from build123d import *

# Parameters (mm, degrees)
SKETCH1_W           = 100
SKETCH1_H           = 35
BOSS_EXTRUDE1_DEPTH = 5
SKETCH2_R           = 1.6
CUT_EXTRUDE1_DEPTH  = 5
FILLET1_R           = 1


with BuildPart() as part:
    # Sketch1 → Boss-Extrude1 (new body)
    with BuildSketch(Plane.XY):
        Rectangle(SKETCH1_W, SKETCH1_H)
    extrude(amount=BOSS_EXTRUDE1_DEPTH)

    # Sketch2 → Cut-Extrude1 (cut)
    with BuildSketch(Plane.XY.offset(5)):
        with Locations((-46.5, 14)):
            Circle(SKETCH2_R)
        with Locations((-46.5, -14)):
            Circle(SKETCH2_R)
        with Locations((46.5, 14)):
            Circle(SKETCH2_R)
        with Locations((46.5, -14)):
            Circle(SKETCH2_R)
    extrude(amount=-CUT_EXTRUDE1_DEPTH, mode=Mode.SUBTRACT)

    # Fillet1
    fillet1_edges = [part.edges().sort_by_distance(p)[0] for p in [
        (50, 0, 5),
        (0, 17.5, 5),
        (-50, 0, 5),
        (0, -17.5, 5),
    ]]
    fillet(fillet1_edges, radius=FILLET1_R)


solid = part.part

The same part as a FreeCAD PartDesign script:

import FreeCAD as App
import Part
import Sketcher


def edges_at(feature, points):
    """Names of the edges that pass closest to the given points."""
    edges = feature.Shape.Edges
    near = lambda p: min(range(len(edges)), key=lambda i: edges[i].distToShape(Part.Vertex(*p))[0])
    return sorted({f"Edge{near(p) + 1}" for p in points})

doc = App.newDocument("Part")
body = doc.addObject("PartDesign::Body", "Body")

# Sketch on XY plane
sketch1 = body.newObject("Sketcher::SketchObject", "Sketch")
sketch1.AttachmentSupport = (doc.getObject("XY_Plane"), [""])
sketch1.MapMode = "FlatFace"
sketch1.addGeometry(Part.LineSegment(App.Vector(-50, 18, 0), App.Vector(-50, -18, 0)), False)
sketch1.addGeometry(Part.LineSegment(App.Vector(-50, -18, 0), App.Vector(50, -18, 0)), False)
sketch1.addGeometry(Part.LineSegment(App.Vector(50, -18, 0), App.Vector(50, 18, 0)), False)
sketch1.addGeometry(Part.LineSegment(App.Vector(50, 18, 0), App.Vector(-50, 18, 0)), False)
sketch1.addConstraint(Sketcher.Constraint("Coincident", 0, 2, 1, 1))
sketch1.addConstraint(Sketcher.Constraint("Coincident", 1, 2, 2, 1))
sketch1.addConstraint(Sketcher.Constraint("Coincident", 2, 2, 3, 1))
sketch1.addConstraint(Sketcher.Constraint("Coincident", 3, 2, 0, 1))
sketch1.addConstraint(Sketcher.Constraint("Vertical", 0))
sketch1.addConstraint(Sketcher.Constraint("Horizontal", 1))
sketch1.addConstraint(Sketcher.Constraint("Vertical", 2))
sketch1.addConstraint(Sketcher.Constraint("Horizontal", 3))
sketch1.addConstraint(Sketcher.Constraint("Symmetric", 0, 2, 2, 2, -1, 1))
sketch1.addConstraint(Sketcher.Constraint("DistanceX", 1, 1, 1, 2, 100.0))
sketch1.addConstraint(Sketcher.Constraint("DistanceY", 0, 2, 0, 1, 35.0))
pad1 = body.newObject("PartDesign::Pad", "Pad")
pad1.Profile = sketch1
pad1.Length = 5

# Sketch on XY plane
sketch2 = body.newObject("Sketcher::SketchObject", "Sketch001")
sketch2.AttachmentSupport = (doc.getObject("XY_Plane"), [""])
sketch2.MapMode = "FlatFace"
sketch2.AttachmentOffset = App.Placement(App.Vector(0, 0, 5), App.Rotation())
sketch2.addGeometry(Part.Circle(App.Vector(-46.5, 14, 0), App.Vector(0, 0, 1), 1.6), False)
sketch2.addGeometry(Part.Circle(App.Vector(-46.5, -14, 0), App.Vector(0, 0, 1), 1.6), False)
sketch2.addGeometry(Part.Circle(App.Vector(46.5, 14, 0), App.Vector(0, 0, 1), 1.6), False)
sketch2.addGeometry(Part.Circle(App.Vector(46.5, -14, 0), App.Vector(0, 0, 1), 1.6), False)
sketch2.addConstraint(Sketcher.Constraint("Equal", 0, 1))
sketch2.addConstraint(Sketcher.Constraint("Equal", 1, 2))
sketch2.addConstraint(Sketcher.Constraint("Equal", 2, 3))
sketch2.addConstraint(Sketcher.Constraint("Symmetric", 1, 3, 2, 3, -1, 1))
sketch2.addConstraint(Sketcher.Constraint("Symmetric", 0, 3, 3, 3, -1, 1))
sketch2.addConstraint(Sketcher.Constraint("Symmetric", 0, 3, 2, 3, -2))
sketch2.addConstraint(Sketcher.Constraint("Diameter", 0, 3.2))
sketch2.addConstraint(Sketcher.Constraint("DistanceY", -1, 1, 0, 3, 14.0))
sketch2.addConstraint(Sketcher.Constraint("DistanceX", 0, 3, 2, 3, 93.0))
pocket1 = body.newObject("PartDesign::Pocket", "Pocket")
pocket1.Profile = sketch2
pocket1.Length = 5
doc.recompute()

fillet = body.newObject("PartDesign::Fillet", "Fillet")
fillet.Base = (pocket1, edges_at(pocket1, [
    (50, 0, 5),
    (0, 17.5, 5),
    (-50, 0, 5),
    (0, -17.5, 5),
]))
fillet.Radius = 1

doc.recompute()
